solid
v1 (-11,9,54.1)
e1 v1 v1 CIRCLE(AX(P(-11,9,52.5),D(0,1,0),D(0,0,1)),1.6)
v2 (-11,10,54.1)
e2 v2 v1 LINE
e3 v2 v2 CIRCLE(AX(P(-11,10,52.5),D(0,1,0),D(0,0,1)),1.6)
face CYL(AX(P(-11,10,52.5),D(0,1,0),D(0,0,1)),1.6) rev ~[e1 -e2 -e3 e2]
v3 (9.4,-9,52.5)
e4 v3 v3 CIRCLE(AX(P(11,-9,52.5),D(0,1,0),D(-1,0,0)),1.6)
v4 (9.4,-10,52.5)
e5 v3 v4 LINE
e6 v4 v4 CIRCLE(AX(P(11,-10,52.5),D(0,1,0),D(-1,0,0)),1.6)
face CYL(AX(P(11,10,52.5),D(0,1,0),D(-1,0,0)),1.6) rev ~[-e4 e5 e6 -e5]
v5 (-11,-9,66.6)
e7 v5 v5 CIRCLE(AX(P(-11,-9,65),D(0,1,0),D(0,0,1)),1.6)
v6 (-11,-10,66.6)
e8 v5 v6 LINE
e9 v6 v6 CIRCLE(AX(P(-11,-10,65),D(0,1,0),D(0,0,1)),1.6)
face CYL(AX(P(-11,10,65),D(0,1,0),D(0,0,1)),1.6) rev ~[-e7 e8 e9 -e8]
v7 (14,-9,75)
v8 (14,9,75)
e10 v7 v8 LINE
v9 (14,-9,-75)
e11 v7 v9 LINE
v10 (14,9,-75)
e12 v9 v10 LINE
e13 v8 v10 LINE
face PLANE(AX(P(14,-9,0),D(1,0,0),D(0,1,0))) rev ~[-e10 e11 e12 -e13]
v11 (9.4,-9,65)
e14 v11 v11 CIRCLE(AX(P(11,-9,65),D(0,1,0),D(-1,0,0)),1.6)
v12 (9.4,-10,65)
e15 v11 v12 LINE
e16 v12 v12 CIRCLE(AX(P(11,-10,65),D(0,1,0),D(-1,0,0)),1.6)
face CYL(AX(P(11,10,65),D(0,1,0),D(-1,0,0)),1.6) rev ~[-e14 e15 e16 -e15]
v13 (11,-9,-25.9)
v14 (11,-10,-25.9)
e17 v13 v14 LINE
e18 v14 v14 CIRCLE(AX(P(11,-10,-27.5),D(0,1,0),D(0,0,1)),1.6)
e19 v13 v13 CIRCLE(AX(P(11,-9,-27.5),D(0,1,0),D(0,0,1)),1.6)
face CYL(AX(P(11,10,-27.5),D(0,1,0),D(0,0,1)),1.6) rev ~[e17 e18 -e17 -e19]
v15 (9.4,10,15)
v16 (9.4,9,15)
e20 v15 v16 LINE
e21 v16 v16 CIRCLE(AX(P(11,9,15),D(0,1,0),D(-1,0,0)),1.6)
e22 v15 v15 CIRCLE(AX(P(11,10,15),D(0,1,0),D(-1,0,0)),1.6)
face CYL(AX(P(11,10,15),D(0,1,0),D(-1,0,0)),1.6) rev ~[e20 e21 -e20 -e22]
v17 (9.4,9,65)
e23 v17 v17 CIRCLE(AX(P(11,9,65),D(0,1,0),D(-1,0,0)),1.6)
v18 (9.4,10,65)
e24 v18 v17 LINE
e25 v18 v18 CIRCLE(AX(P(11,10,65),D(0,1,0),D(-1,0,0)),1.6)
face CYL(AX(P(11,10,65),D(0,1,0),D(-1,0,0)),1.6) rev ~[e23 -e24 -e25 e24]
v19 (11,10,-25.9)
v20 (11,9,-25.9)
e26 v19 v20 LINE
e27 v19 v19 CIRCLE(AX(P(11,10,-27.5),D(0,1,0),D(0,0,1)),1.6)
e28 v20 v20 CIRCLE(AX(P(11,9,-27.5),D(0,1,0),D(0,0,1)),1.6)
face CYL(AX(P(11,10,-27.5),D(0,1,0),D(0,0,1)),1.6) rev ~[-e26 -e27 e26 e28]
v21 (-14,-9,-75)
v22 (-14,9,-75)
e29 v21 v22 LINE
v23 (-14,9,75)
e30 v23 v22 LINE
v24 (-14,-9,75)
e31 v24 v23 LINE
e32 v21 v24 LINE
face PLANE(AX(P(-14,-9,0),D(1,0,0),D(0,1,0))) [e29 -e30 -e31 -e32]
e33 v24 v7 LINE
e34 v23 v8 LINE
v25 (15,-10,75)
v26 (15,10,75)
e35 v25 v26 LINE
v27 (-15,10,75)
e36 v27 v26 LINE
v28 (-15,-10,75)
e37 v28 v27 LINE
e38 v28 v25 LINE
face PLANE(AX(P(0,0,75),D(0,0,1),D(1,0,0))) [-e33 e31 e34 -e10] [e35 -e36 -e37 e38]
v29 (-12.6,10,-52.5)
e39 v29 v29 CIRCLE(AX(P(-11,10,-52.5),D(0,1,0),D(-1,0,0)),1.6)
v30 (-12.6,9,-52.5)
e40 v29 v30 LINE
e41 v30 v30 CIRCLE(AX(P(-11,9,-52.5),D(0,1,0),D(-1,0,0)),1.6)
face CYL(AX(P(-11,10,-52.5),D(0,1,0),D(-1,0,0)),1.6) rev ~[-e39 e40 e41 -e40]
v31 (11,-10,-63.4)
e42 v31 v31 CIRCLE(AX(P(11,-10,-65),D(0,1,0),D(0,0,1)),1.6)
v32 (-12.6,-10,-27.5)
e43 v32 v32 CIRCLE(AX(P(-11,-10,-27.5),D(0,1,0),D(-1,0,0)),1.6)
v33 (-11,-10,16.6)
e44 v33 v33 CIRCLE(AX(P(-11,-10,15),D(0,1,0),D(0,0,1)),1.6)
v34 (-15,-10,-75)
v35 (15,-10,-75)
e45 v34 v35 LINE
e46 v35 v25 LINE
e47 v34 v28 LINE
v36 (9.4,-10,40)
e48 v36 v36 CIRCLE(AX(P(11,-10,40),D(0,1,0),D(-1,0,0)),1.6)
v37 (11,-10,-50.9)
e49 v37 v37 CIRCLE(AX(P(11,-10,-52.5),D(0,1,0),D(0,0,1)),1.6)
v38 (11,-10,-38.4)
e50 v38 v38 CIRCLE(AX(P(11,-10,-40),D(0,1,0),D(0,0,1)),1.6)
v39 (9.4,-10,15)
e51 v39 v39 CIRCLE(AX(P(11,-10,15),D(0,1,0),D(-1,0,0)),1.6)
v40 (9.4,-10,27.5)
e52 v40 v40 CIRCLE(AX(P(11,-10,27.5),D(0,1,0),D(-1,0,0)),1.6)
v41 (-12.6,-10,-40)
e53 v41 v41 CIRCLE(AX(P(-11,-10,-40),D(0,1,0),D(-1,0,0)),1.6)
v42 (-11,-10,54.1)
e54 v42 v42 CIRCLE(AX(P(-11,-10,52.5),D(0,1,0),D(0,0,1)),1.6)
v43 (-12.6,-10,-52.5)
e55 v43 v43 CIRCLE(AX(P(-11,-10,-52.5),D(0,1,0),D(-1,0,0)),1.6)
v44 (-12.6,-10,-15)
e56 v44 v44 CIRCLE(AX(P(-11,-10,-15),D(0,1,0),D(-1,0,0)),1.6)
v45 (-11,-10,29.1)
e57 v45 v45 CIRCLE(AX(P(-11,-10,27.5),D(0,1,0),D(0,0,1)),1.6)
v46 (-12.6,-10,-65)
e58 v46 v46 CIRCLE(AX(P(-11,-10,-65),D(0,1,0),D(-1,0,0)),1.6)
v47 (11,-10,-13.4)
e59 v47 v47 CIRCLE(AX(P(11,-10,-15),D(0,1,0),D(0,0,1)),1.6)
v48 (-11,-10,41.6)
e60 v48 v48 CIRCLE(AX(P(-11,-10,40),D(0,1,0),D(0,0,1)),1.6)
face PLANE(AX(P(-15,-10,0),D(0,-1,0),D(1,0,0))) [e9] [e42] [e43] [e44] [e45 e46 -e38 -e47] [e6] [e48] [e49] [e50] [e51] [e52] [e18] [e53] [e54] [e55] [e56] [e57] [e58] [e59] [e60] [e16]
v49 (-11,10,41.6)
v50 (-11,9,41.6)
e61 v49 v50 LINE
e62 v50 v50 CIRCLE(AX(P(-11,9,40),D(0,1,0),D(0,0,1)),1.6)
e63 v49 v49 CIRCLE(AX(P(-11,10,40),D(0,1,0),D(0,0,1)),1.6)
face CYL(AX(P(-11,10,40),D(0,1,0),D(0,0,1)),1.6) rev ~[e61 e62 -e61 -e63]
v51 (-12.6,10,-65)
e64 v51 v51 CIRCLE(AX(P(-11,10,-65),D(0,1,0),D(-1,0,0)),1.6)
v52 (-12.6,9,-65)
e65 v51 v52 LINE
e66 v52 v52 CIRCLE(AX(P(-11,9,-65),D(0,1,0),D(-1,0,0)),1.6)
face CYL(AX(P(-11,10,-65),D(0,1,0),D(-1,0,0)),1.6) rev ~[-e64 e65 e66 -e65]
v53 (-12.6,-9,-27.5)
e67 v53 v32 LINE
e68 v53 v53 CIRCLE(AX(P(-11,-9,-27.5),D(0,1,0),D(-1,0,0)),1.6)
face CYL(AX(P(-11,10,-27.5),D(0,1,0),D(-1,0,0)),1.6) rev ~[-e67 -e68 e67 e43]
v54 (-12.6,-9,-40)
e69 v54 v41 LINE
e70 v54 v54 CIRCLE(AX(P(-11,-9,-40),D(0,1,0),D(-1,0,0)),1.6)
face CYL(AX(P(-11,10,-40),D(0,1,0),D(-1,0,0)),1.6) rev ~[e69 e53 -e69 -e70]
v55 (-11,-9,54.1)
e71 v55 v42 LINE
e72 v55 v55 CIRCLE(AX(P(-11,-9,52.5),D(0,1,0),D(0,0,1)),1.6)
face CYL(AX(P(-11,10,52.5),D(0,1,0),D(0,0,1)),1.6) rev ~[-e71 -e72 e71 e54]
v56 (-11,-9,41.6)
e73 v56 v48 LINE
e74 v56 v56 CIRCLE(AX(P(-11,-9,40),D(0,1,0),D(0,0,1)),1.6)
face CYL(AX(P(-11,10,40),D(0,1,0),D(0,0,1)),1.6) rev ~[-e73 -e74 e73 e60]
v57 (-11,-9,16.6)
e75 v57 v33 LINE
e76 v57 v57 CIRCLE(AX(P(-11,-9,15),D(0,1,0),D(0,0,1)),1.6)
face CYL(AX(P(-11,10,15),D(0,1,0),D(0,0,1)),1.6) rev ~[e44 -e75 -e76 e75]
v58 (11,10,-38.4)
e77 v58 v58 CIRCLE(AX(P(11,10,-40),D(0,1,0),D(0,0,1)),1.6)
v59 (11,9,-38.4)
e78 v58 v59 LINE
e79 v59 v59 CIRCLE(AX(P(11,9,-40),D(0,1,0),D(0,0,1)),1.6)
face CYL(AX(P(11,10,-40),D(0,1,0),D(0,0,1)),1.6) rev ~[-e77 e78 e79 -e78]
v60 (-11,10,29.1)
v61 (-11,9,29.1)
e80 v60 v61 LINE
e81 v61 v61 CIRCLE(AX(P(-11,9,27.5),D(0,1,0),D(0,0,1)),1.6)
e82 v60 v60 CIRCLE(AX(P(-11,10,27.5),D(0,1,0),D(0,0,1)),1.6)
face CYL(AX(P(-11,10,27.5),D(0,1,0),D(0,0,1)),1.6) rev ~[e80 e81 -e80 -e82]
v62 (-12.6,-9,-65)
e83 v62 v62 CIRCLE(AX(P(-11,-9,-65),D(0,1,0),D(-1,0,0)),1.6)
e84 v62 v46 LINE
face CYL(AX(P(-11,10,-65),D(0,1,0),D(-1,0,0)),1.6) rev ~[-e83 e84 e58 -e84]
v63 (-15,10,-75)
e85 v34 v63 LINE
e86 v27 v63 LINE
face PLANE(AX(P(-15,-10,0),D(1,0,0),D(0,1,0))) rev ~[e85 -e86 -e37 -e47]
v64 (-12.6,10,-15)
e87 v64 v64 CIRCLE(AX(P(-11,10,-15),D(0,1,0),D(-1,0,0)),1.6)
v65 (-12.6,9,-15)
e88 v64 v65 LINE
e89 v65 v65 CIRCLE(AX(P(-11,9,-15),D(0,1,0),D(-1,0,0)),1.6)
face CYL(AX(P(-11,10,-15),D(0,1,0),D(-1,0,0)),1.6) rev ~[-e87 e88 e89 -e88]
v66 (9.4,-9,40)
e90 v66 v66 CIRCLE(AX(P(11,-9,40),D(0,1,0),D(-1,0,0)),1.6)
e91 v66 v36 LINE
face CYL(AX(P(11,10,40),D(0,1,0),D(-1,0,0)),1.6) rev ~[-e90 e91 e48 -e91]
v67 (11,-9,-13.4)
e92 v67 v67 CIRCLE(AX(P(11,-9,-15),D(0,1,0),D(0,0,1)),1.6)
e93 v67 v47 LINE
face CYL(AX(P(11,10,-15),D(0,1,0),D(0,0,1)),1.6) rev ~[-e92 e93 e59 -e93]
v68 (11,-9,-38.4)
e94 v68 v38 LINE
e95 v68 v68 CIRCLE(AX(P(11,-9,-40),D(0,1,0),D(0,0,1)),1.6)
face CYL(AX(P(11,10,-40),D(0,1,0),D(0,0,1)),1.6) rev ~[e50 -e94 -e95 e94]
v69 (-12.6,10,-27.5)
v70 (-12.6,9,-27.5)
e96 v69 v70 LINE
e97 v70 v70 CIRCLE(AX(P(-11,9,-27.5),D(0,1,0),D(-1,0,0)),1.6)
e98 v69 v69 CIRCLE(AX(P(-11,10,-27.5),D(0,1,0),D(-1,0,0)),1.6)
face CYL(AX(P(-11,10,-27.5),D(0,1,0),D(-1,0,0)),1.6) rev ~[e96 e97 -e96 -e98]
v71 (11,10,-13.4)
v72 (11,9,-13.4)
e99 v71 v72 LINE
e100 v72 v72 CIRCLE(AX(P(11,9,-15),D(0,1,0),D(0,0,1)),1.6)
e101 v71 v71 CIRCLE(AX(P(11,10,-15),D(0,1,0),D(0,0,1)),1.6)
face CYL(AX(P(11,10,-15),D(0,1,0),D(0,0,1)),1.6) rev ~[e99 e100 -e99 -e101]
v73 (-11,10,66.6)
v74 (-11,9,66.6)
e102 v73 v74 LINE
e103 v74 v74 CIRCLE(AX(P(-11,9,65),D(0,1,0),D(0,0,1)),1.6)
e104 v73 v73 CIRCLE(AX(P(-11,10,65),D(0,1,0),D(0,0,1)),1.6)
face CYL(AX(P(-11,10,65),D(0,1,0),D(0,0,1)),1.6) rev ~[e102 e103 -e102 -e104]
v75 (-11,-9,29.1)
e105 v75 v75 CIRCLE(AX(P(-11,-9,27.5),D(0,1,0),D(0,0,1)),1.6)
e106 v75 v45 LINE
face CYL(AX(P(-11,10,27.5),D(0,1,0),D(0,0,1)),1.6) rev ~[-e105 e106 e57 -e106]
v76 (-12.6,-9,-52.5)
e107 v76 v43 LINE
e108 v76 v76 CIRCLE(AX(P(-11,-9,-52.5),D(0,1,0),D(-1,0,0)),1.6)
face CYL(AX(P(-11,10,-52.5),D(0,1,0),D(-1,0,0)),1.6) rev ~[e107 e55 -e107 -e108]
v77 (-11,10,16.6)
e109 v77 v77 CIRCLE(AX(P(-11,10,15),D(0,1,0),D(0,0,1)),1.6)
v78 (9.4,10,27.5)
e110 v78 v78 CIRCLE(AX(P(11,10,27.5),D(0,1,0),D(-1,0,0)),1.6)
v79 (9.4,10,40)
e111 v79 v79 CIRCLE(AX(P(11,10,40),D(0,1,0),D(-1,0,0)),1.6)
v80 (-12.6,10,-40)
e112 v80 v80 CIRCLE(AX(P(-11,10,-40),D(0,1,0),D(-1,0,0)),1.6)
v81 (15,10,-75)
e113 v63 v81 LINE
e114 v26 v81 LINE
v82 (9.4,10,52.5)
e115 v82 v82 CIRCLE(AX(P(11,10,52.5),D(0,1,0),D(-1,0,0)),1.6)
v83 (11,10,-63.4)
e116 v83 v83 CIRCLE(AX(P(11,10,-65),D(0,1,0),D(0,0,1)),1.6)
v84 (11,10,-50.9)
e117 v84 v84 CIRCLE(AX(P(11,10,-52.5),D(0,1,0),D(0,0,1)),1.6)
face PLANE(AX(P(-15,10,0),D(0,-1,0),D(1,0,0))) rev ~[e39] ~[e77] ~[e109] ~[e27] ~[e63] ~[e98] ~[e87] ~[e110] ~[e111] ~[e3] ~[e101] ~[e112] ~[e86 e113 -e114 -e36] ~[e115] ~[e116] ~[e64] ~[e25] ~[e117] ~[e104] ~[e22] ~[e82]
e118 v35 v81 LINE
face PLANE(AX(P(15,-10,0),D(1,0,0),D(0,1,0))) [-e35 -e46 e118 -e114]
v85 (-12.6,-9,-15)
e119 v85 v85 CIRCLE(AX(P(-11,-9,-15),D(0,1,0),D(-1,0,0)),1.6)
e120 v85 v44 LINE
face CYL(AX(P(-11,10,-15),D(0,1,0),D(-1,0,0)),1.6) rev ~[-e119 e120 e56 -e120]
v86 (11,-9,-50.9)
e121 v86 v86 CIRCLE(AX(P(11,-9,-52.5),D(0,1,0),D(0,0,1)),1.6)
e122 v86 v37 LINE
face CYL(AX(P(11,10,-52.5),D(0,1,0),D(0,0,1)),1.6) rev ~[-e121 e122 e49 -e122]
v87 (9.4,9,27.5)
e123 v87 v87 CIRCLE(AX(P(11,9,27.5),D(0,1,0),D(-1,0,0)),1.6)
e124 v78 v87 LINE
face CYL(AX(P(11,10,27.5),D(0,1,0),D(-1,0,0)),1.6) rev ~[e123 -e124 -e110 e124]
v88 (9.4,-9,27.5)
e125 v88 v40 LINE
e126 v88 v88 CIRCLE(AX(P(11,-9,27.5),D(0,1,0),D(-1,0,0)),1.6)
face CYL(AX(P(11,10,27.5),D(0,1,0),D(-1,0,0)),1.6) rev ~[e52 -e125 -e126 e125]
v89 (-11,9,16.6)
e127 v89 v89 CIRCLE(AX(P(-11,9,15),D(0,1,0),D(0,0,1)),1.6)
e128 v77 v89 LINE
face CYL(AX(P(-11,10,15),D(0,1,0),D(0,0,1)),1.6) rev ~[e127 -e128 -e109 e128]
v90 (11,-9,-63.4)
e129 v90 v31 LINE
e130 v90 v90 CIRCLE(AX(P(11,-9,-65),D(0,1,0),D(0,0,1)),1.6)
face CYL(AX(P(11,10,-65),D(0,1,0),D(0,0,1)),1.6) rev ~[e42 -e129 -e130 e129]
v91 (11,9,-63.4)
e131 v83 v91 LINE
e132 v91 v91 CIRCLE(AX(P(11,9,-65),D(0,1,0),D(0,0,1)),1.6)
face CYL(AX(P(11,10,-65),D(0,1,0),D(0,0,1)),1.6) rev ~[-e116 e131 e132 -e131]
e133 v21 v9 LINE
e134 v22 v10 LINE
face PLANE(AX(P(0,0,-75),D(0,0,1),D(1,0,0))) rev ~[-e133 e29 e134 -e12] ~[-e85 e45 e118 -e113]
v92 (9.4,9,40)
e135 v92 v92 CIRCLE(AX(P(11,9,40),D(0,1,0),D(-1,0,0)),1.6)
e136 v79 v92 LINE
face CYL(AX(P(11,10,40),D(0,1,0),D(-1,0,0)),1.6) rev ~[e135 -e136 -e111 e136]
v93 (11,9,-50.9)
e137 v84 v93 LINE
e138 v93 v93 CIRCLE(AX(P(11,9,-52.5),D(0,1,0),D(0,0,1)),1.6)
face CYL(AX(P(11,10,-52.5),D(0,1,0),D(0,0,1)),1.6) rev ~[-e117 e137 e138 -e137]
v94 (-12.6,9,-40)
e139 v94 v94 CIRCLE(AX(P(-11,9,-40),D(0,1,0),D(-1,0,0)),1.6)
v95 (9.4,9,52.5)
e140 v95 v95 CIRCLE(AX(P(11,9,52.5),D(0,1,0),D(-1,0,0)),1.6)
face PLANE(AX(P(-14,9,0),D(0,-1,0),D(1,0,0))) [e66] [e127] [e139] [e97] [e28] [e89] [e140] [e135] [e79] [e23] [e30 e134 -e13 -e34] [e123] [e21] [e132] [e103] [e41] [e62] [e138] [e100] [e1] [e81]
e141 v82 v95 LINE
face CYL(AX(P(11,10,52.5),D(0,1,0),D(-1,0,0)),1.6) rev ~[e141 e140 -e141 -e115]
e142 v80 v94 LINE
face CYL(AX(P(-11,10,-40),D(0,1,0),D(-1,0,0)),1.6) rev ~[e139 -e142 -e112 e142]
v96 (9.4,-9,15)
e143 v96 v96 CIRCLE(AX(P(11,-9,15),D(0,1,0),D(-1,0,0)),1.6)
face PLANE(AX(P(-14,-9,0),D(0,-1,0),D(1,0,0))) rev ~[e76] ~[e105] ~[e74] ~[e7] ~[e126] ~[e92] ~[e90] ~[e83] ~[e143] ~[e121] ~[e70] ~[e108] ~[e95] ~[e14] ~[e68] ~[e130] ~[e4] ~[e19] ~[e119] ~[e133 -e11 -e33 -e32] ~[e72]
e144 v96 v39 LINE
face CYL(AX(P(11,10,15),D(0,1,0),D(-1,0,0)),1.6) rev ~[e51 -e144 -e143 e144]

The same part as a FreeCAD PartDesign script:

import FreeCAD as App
import Part
import Sketcher
Q = App.Units.Quantity


def add_polygon(sketch, points):
    """Adds a closed chain of lines whose ends are joined by coincident constraints."""
    first, n = sketch.GeometryCount, len(points)
    for a, b in zip(points, points[1:] + points[:1]):
        sketch.addGeometry(Part.LineSegment(App.Vector(*a, 0), App.Vector(*b, 0)), False)
    for i in range(n):
        sketch.addConstraint(Sketcher.Constraint("Coincident", first + i, 2, first + (i + 1) % n, 1))

doc = App.newDocument("Part")
body = doc.addObject("PartDesign::Body", "Body")

sketch1 = body.newObject("Sketcher::SketchObject", "Sketch")
sketch1.AttachmentSupport = (doc.getObject("XY_Plane"), [""])
sketch1.MapMode = "FlatFace"
add_polygon(sketch1, [(-15, 10), (-15, -10), (15, -10), (15, 10)])
add_polygon(sketch1, [(14, -9), (-14, -9), (-14, 9), (14, 9)])
sketch1.addConstraint(Sketcher.Constraint("Vertical", 0))
sketch1.addConstraint(Sketcher.Constraint("Horizontal", 1))
sketch1.addConstraint(Sketcher.Constraint("Vertical", 2))
sketch1.addConstraint(Sketcher.Constraint("Horizontal", 3))
sketch1.addConstraint(Sketcher.Constraint("Horizontal", 4))
sketch1.addConstraint(Sketcher.Constraint("Vertical", 5))
sketch1.addConstraint(Sketcher.Constraint("Horizontal", 6))
sketch1.addConstraint(Sketcher.Constraint("Vertical", 7))
sketch1.addConstraint(Sketcher.Constraint("Symmetric", 0, 2, 2, 2, -1, 1))
sketch1.addConstraint(Sketcher.Constraint("Symmetric", 4, 2, 6, 2, -1, 1))
sketch1.addConstraint(Sketcher.Constraint("DistanceX", 1, 1, 1, 2, Q("30 mm")))
sketch1.addConstraint(Sketcher.Constraint("DistanceX", 4, 2, 4, 1, Q("28 mm")))
sketch1.addConstraint(Sketcher.Constraint("DistanceY", 0, 2, 0, 1, Q("20 mm")))
sketch1.addConstraint(Sketcher.Constraint("DistanceY", 5, 1, 5, 2, Q("18 mm")))
pad1 = body.newObject("PartDesign::Pad", "Pad")
pad1.Profile = sketch1
pad1.Length = 150
pad1.Midplane = True

sketch2 = body.newObject("Sketcher::SketchObject", "Sketch001")
sketch2.AttachmentSupport = (doc.getObject("XZ_Plane"), [""])
sketch2.MapMode = "FlatFace"
sketch2.AttachmentOffset = App.Placement(App.Vector(0, 0, -10), App.Rotation())
sketch2.addGeometry(Part.Circle(App.Vector(-11, 65, 0), App.Vector(0, 0, 1), 1.6), False)
sketch2.addGeometry(Part.Circle(App.Vector(-11, 52.5, 0), App.Vector(0, 0, 1), 1.6), False)
sketch2.addGeometry(Part.Circle(App.Vector(-11, 40, 0), App.Vector(0, 0, 1), 1.6), False)
sketch2.addGeometry(Part.Circle(App.Vector(-11, 27.5, 0), App.Vector(0, 0, 1), 1.6), False)
sketch2.addGeometry(Part.Circle(App.Vector(11, 27.5, 0), App.Vector(0, 0, 1), 1.6), False)
sketch2.addGeometry(Part.Circle(App.Vector(11, 40, 0), App.Vector(0, 0, 1), 1.6), False)
sketch2.addGeometry(Part.Circle(App.Vector(11, 52.5, 0), App.Vector(0, 0, 1), 1.6), False)
sketch2.addGeometry(Part.Circle(App.Vector(11, 65, 0), App.Vector(0, 0, 1), 1.6), False)
sketch2.addGeometry(Part.Circle(App.Vector(11, -27.5, 0), App.Vector(0, 0, 1), 1.6), False)
sketch2.addGeometry(Part.Circle(App.Vector(-11, -27.5, 0), App.Vector(0, 0, 1), 1.6), False)
sketch2.addGeometry(Part.Circle(App.Vector(11, -40, 0), App.Vector(0, 0, 1), 1.6), False)
sketch2.addGeometry(Part.Circle(App.Vector(-11, -40, 0), App.Vector(0, 0, 1), 1.6), False)
sketch2.addGeometry(Part.Circle(App.Vector(11, -52.5, 0), App.Vector(0, 0, 1), 1.6), False)
sketch2.addGeometry(Part.Circle(App.Vector(-11, -52.5, 0), App.Vector(0, 0, 1), 1.6), False)
sketch2.addGeometry(Part.Circle(App.Vector(11, -65, 0), App.Vector(0, 0, 1), 1.6), False)
sketch2.addGeometry(Part.Circle(App.Vector(-11, -65, 0), App.Vector(0, 0, 1), 1.6), False)
sketch2.addGeometry(Part.Circle(App.Vector(-11, 15, 0), App.Vector(0, 0, 1), 1.6), False)
sketch2.addGeometry(Part.Circle(App.Vector(11, 15, 0), App.Vector(0, 0, 1), 1.6), False)
sketch2.addGeometry(Part.Circle(App.Vector(11, -15, 0), App.Vector(0, 0, 1), 1.6), False)
sketch2.addGeometry(Part.Circle(App.Vector(-11, -15, 0), App.Vector(0, 0, 1), 1.6), False)
sketch2.addConstraint(Sketcher.Constraint("Equal", 0, 1))
sketch2.addConstraint(Sketcher.Constraint("Equal", 1, 2))
sketch2.addConstraint(Sketcher.Constraint("Equal", 2, 3))
sketch2.addConstraint(Sketcher.Constraint("Equal", 3, 4))
sketch2.addConstraint(Sketcher.Constraint("Equal", 4, 5))
sketch2.addConstraint(Sketcher.Constraint("Equal", 5, 6))
sketch2.addConstraint(Sketcher.Constraint("Equal", 6, 7))
sketch2.addConstraint(Sketcher.Constraint("Equal", 7, 8))
sketch2.addConstraint(Sketcher.Constraint("Equal", 8, 9))
sketch2.addConstraint(Sketcher.Constraint("Equal", 9, 10))
sketch2.addConstraint(Sketcher.Constraint("Equal", 10, 11))
sketch2.addConstraint(Sketcher.Constraint("Equal", 11, 12))
sketch2.addConstraint(Sketcher.Constraint("Equal", 12, 13))
sketch2.addConstraint(Sketcher.Constraint("Equal", 13, 14))
sketch2.addConstraint(Sketcher.Constraint("Equal", 14, 15))
sketch2.addConstraint(Sketcher.Constraint("Equal", 15, 16))
sketch2.addConstraint(Sketcher.Constraint("Equal", 16, 17))
sketch2.addConstraint(Sketcher.Constraint("Equal", 17, 18))
sketch2.addConstraint(Sketcher.Constraint("Equal", 18, 19))
sketch2.addConstraint(Sketcher.Constraint("Symmetric", 3, 3, 8, 3, -1, 1))
sketch2.addConstraint(Sketcher.Constraint("Symmetric", 4, 3, 9, 3, -1, 1))
sketch2.addConstraint(Sketcher.Constraint("Symmetric", 2, 3, 10, 3, -1, 1))
sketch2.addConstraint(Sketcher.Constraint("Symmetric", 5, 3, 11, 3, -1, 1))
sketch2.addConstraint(Sketcher.Constraint("Symmetric", 1, 3, 12, 3, -1, 1))
sketch2.addConstraint(Sketcher.Constraint("Symmetric", 6, 3, 13, 3, -1, 1))
sketch2.addConstraint(Sketcher.Constraint("Symmetric", 0, 3, 14, 3, -1, 1))
sketch2.addConstraint(Sketcher.Constraint("Symmetric", 7, 3, 15, 3, -1, 1))
sketch2.addConstraint(Sketcher.Constraint("Symmetric", 16, 3, 18, 3, -1, 1))
sketch2.addConstraint(Sketcher.Constraint("Symmetric", 17, 3, 19, 3, -1, 1))
sketch2.addConstraint(Sketcher.Constraint("Symmetric", 3, 3, 4, 3, -2))
sketch2.addConstraint(Sketcher.Constraint("Symmetric", 2, 3, 5, 3, -2))
sketch2.addConstraint(Sketcher.Constraint("Symmetric", 1, 3, 6, 3, -2))
sketch2.addConstraint(Sketcher.Constraint("Symmetric", 0, 3, 7, 3, -2))
sketch2.addConstraint(Sketcher.Constraint("Symmetric", 16, 3, 17, 3, -2))
sketch2.addConstraint(Sketcher.Constraint("Vertical", 0, 3, 1, 3))
sketch2.addConstraint(Sketcher.Constraint("Vertical", 1, 3, 2, 3))
sketch2.addConstraint(Sketcher.Constraint("Vertical", 2, 3, 3, 3))
sketch2.addConstraint(Sketcher.Constraint("Vertical", 15, 3, 16, 3))
sketch2.addConstraint(Sketcher.Constraint("Diameter", 0, Q("3.2 mm")))
sketch2.addConstraint(Sketcher.Constraint("DistanceX", 0, 3, -1, 1, Q("11 mm")))
sketch2.addConstraint(Sketcher.Constraint("DistanceY", -1, 1, 0, 3, Q("65 mm")))
sketch2.addConstraint(Sketcher.Constraint("DistanceY", -1, 1, 2, 3, Q("40 mm")))
sketch2.addConstraint(Sketcher.Constraint("DistanceY", -1, 1, 16, 3, Q("15 mm")))
sketch2.addConstraint(Sketcher.Constraint("DistanceY", 3, 3, 1, 3, Q("25 mm")))
sketch2.addConstraint(Sketcher.Constraint("DistanceY", 8, 3, 4, 3, Q("55 mm")))
pocket1 = body.newObject("PartDesign::Pocket", "Pocket")
pocket1.Profile = sketch2
pocket1.Type = "ThroughAll"
pocket1.Reversed = True

doc.recompute()
